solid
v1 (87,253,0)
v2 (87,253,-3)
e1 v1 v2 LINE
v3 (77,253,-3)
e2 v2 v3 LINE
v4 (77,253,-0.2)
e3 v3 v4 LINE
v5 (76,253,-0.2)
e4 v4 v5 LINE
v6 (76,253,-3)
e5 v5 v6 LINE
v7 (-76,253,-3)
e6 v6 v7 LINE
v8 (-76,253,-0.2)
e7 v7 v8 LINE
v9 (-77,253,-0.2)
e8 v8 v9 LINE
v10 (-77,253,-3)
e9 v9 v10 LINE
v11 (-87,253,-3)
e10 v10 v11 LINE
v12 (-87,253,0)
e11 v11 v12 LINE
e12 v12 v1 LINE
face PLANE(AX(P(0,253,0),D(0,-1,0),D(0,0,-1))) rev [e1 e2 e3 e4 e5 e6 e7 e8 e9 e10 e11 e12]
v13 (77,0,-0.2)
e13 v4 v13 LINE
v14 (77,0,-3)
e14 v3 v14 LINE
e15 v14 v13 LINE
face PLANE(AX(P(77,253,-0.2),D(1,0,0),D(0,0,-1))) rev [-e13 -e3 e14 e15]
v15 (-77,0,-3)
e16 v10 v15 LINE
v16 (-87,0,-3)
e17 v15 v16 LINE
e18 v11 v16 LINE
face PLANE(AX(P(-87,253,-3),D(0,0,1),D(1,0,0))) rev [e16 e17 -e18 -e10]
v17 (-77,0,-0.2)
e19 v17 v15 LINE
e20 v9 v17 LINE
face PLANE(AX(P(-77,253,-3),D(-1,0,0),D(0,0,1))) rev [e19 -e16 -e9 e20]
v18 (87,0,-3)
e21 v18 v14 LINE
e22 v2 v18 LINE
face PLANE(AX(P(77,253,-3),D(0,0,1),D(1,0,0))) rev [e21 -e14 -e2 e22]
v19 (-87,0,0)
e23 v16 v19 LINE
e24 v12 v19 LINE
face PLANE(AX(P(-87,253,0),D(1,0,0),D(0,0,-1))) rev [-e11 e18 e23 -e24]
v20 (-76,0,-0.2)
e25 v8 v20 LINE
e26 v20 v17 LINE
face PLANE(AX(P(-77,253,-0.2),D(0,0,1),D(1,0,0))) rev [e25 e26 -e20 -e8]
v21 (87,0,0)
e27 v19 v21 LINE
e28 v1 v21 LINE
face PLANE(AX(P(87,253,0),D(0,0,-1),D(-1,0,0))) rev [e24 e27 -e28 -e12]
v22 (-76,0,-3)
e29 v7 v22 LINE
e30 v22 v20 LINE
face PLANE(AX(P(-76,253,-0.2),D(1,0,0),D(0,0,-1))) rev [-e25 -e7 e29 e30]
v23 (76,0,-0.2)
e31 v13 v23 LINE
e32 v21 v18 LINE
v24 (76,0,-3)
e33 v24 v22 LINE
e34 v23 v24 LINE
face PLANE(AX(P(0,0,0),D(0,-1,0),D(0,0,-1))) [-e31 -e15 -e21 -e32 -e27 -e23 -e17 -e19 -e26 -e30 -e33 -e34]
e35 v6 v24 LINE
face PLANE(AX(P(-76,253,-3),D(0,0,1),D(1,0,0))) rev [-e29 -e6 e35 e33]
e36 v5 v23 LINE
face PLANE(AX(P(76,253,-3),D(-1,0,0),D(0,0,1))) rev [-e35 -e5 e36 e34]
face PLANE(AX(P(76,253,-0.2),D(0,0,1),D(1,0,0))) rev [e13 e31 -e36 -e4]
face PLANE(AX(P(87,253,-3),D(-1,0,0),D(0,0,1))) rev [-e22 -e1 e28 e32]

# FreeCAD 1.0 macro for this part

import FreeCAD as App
import Part
import Sketcher

V = App.Vector
Q = App.Units.Quantity


def add_polygon(sketch, points):
    """Adds a closed chain of lines whose ends are joined by coincident constraints."""
    first, n = sketch.GeometryCount, len(points)
    for a, b in zip(points, points[1:] + points[:1]):
        sketch.addGeometry(Part.LineSegment(App.Vector(*a, 0), App.Vector(*b, 0)), False)
    for i in range(n):
        sketch.addConstraint(Sketcher.Constraint("Coincident", first + i, 2, first + (i + 1) % n, 1))

doc = App.newDocument("Part")
body = doc.addObject("PartDesign::Body", "Body")

# Sketch on XZ plane
sketch1 = body.newObject("Sketcher::SketchObject", "Sketch")
sketch1.AttachmentSupport = (doc.getObject("XZ_Plane"), [""])
sketch1.MapMode = "FlatFace"
add_polygon(sketch1, [(-87, -3), (-87, 0), (87, 0), (87, -3), (77, -3), (77, -0.2), (76, -0.2), (76, -3), (-76, -3), (-76, -0.2), (-77, -0.2), (-77, -3)])  # lines 0-11
sketch1.addConstraint(Sketcher.Constraint("Vertical", 0))
sketch1.addConstraint(Sketcher.Constraint("Horizontal", 1))
sketch1.addConstraint(Sketcher.Constraint("Vertical", 2))
sketch1.addConstraint(Sketcher.Constraint("Horizontal", 3))
sketch1.addConstraint(Sketcher.Constraint("Vertical", 4))
sketch1.addConstraint(Sketcher.Constraint("Horizontal", 5))
sketch1.addConstraint(Sketcher.Constraint("Vertical", 6))
sketch1.addConstraint(Sketcher.Constraint("Horizontal", 7))
sketch1.addConstraint(Sketcher.Constraint("Vertical", 8))
sketch1.addConstraint(Sketcher.Constraint("Horizontal", 9))
sketch1.addConstraint(Sketcher.Constraint("Vertical", 10))
sketch1.addConstraint(Sketcher.Constraint("Horizontal", 11))
sketch1.addConstraint(Sketcher.Constraint("Symmetric", 0, 2, 1, 2, -1, 1))
sketch1.addConstraint(Sketcher.Constraint("Symmetric", 5, 2, 8, 2, -2))
sketch1.addConstraint(Sketcher.Constraint("Symmetric", 3, 2, 10, 2, -2))
sketch1.addConstraint(Sketcher.Constraint("Horizontal", 3, 2, 6, 2))
sketch1.addConstraint(Sketcher.Constraint("DistanceX", 1, 1, 1, 2, Q("174 mm")))
sketch1.addConstraint(Sketcher.Constraint("DistanceX", 3, 2, 3, 1, Q("10 mm")))
sketch1.addConstraint(Sketcher.Constraint("DistanceX", 5, 2, 5, 1, Q("1 mm")))
sketch1.addConstraint(Sketcher.Constraint("DistanceY", 0, 1, 0, 2, Q("3 mm")))
sketch1.addConstraint(Sketcher.Constraint("DistanceY", 4, 1, 4, 2, Q("2.8 mm")))
pad1 = body.newObject("PartDesign::Pad", "Pad")
pad1.Profile = sketch1
pad1.Length = 253
pad1.Reversed = True

doc.recompute()
